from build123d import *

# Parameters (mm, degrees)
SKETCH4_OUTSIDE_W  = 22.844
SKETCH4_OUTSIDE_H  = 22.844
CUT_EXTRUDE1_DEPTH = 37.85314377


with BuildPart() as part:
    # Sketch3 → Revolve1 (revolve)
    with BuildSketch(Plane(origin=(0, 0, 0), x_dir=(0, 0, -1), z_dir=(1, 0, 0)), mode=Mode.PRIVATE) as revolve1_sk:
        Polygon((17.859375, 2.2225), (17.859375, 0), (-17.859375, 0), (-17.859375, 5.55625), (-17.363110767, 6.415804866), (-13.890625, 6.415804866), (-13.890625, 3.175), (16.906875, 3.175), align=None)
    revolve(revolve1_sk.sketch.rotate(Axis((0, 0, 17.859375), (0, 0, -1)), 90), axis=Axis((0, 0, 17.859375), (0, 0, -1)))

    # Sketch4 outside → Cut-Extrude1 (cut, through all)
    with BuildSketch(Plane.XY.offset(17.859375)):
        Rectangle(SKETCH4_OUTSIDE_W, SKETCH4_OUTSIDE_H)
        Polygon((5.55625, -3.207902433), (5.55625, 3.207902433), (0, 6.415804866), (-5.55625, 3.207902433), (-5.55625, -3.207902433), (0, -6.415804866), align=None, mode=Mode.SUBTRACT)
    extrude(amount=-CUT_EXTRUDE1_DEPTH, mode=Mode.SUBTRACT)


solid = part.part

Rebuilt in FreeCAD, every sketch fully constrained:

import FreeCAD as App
import Part
import Sketcher

V = App.Vector
Q = App.Units.Quantity

doc = App.newDocument("Part")
body = doc.addObject("PartDesign::Body", "Body")

sketch1 = body.newObject("Sketcher::SketchObject", "Sketch")
sketch1.AttachmentSupport = (doc.getObject("YZ_Plane"), [""])
sketch1.MapMode = "FlatFace"
sketch1.addGeometry(Part.LineSegment(V(0, -17.859375, 0), V(2.2225, -17.859375, 0)), False)
sketch1.addGeometry(Part.LineSegment(V(2.2225, -17.859375, 0), V(3.175, -16.906875, 0)), False)
sketch1.addGeometry(Part.LineSegment(V(3.175, -16.906875, 0), V(3.175, 13.890625, 0)), False)
sketch1.addGeometry(Part.LineSegment(V(3.175, 13.890625, 0), V(6.415805, 13.890625, 0)), False)
sketch1.addGeometry(Part.LineSegment(V(6.415805, 13.890625, 0), V(6.415805, 17.363111, 0)), False)
sketch1.addGeometry(Part.LineSegment(V(6.415805, 17.363111, 0), V(5.55625, 17.859375, 0)), False)
sketch1.addGeometry(Part.LineSegment(V(5.55625, 17.859375, 0), V(0, 17.859375, 0)), False)
sketch1.addGeometry(Part.LineSegment(V(0, 17.859375, 0), V(0, -17.859375, 0)), False)
sketch1.addConstraint(Sketcher.Constraint("Coincident", 0, 2, 1, 1))
sketch1.addConstraint(Sketcher.Constraint("Coincident", 1, 2, 2, 1))
sketch1.addConstraint(Sketcher.Constraint("Coincident", 2, 2, 3, 1))
sketch1.addConstraint(Sketcher.Constraint("Coincident", 3, 2, 4, 1))
sketch1.addConstraint(Sketcher.Constraint("Coincident", 4, 2, 5, 1))
sketch1.addConstraint(Sketcher.Constraint("Coincident", 5, 2, 6, 1))
sketch1.addConstraint(Sketcher.Constraint("Coincident", 6, 2, 7, 1))
sketch1.addConstraint(Sketcher.Constraint("Coincident", 7, 2, 0, 1))
sketch1.addConstraint(Sketcher.Constraint("Horizontal", 0))
sketch1.addConstraint(Sketcher.Constraint("Vertical", 2))
sketch1.addConstraint(Sketcher.Constraint("Horizontal", 3))
sketch1.addConstraint(Sketcher.Constraint("Vertical", 4))
sketch1.addConstraint(Sketcher.Constraint("Horizontal", 6))
sketch1.addConstraint(Sketcher.Constraint("Vertical", 7))
sketch1.addConstraint(Sketcher.Constraint("Symmetric", 6, 2, 7, 2, -1, 1))
sketch1.addConstraint(Sketcher.Constraint("Angle", 1, Q("45 deg")))
sketch1.addConstraint(Sketcher.Constraint("Angle", 5, Q("150 deg")))
sketch1.addConstraint(Sketcher.Constraint("DistanceX", 6, 2, 6, 1, Q("0.21875 in")))
sketch1.addConstraint(Sketcher.Constraint("DistanceY", 7, 2, 7, 1, Q("1.40625 in")))
sketch1.addConstraint(Sketcher.Constraint("DistanceY", 0, 2, 2, 2, Q("1.25 in")))
sketch1.addConstraint(Sketcher.Constraint("DistanceX", 0, 1, 0, 2, Q("0.0875 in")))
sketch1.addConstraint(Sketcher.Constraint("DistanceY", 2, 1, 2, 2, Q("1.2125 in")))
sketch1.addConstraint(Sketcher.Constraint("Distance", 5, 0.992528))
revolution = body.newObject("PartDesign::Revolution", "Revolution")
revolution.Profile = sketch1
revolution.ReferenceAxis = (sketch1, ["V_Axis"])
revolution.Angle = 360

sketch2 = body.newObject("Sketcher::SketchObject", "Sketch001")
sketch2.AttachmentSupport = (doc.getObject("XY_Plane"), [""])
sketch2.MapMode = "FlatFace"
sketch2.AttachmentOffset = App.Placement(V(0, 0, 0.703125 * 25.4), App.Rotation())
sketch2.addGeometry(Part.LineSegment(V(-11.422, 11.422, 0), V(-11.422, -11.422, 0)), False)
sketch2.addGeometry(Part.LineSegment(V(-11.422, -11.422, 0), V(11.422, -11.422, 0)), False)
sketch2.addGeometry(Part.LineSegment(V(11.422, -11.422, 0), V(11.422, 11.422, 0)), False)
sketch2.addGeometry(Part.LineSegment(V(11.422, 11.422, 0), V(-11.422, 11.422, 0)), False)
sketch2.addGeometry(Part.LineSegment(V(5.55625, 3.207902, 0), V(5.55625, -3.207902, 0)), False)
sketch2.addGeometry(Part.LineSegment(V(5.55625, -3.207902, 0), V(0, -6.415805, 0)), False)
sketch2.addGeometry(Part.LineSegment(V(0, -6.415805, 0), V(-5.55625, -3.207902, 0)), False)
sketch2.addGeometry(Part.LineSegment(V(-5.55625, -3.207902, 0), V(-5.55625, 3.207902, 0)), False)
sketch2.addGeometry(Part.LineSegment(V(-5.55625, 3.207902, 0), V(0, 6.415805, 0)), False)
sketch2.addGeometry(Part.LineSegment(V(0, 6.415805, 0), V(5.55625, 3.207902, 0)), False)
sketch2.addConstraint(Sketcher.Constraint("Coincident", 0, 2, 1, 1))
sketch2.addConstraint(Sketcher.Constraint("Coincident", 1, 2, 2, 1))
sketch2.addConstraint(Sketcher.Constraint("Coincident", 2, 2, 3, 1))
sketch2.addConstraint(Sketcher.Constraint("Coincident", 3, 2, 0, 1))
sketch2.addConstraint(Sketcher.Constraint("Coincident", 4, 2, 5, 1))
sketch2.addConstraint(Sketcher.Constraint("Coincident", 5, 2, 6, 1))
sketch2.addConstraint(Sketcher.Constraint("Coincident", 6, 2, 7, 1))
sketch2.addConstraint(Sketcher.Constraint("Coincident", 7, 2, 8, 1))
sketch2.addConstraint(Sketcher.Constraint("Coincident", 8, 2, 9, 1))
sketch2.addConstraint(Sketcher.Constraint("Coincident", 9, 2, 4, 1))
sketch2.addConstraint(Sketcher.Constraint("Vertical", 0))
sketch2.addConstraint(Sketcher.Constraint("Horizontal", 1))
sketch2.addConstraint(Sketcher.Constraint("Vertical", 2))
sketch2.addConstraint(Sketcher.Constraint("Horizontal", 3))
sketch2.addConstraint(Sketcher.Constraint("Vertical", 4))
sketch2.addConstraint(Sketcher.Constraint("Vertical", 7))
sketch2.addConstraint(Sketcher.Constraint("Symmetric", 0, 2, 2, 2, -1, 1))
sketch2.addConstraint(Sketcher.Constraint("Symmetric", 4, 2, 7, 2, -1, 1))
sketch2.addConstraint(Sketcher.Constraint("Symmetric", 5, 2, 8, 2, -1, 1))
sketch2.addConstraint(Sketcher.Constraint("PointOnObject", 5, 2, -2))
sketch2.addConstraint(Sketcher.Constraint("Parallel", 6, 9))
sketch2.addConstraint(Sketcher.Constraint("Horizontal", 4, 2, 6, 2))
sketch2.addConstraint(Sketcher.Constraint("Equal", 3, 0))
sketch2.addConstraint(Sketcher.Constraint("Angle", 5, Q("-150 deg")))
sketch2.addConstraint(Sketcher.Constraint("DistanceX", -1, 1, 4, 2, Q("0.21875 in")))
sketch2.addConstraint(Sketcher.Constraint("DistanceX", 1, 1, 1, 2, 22.844))
sketch2.addConstraint(Sketcher.Constraint("DistanceY", 4, 2, 4, 1, 6.415805))
pocket1 = body.newObject("PartDesign::Pocket", "Pocket")
pocket1.Profile = sketch2
pocket1.Type = "ThroughAll"

doc.recompute()
